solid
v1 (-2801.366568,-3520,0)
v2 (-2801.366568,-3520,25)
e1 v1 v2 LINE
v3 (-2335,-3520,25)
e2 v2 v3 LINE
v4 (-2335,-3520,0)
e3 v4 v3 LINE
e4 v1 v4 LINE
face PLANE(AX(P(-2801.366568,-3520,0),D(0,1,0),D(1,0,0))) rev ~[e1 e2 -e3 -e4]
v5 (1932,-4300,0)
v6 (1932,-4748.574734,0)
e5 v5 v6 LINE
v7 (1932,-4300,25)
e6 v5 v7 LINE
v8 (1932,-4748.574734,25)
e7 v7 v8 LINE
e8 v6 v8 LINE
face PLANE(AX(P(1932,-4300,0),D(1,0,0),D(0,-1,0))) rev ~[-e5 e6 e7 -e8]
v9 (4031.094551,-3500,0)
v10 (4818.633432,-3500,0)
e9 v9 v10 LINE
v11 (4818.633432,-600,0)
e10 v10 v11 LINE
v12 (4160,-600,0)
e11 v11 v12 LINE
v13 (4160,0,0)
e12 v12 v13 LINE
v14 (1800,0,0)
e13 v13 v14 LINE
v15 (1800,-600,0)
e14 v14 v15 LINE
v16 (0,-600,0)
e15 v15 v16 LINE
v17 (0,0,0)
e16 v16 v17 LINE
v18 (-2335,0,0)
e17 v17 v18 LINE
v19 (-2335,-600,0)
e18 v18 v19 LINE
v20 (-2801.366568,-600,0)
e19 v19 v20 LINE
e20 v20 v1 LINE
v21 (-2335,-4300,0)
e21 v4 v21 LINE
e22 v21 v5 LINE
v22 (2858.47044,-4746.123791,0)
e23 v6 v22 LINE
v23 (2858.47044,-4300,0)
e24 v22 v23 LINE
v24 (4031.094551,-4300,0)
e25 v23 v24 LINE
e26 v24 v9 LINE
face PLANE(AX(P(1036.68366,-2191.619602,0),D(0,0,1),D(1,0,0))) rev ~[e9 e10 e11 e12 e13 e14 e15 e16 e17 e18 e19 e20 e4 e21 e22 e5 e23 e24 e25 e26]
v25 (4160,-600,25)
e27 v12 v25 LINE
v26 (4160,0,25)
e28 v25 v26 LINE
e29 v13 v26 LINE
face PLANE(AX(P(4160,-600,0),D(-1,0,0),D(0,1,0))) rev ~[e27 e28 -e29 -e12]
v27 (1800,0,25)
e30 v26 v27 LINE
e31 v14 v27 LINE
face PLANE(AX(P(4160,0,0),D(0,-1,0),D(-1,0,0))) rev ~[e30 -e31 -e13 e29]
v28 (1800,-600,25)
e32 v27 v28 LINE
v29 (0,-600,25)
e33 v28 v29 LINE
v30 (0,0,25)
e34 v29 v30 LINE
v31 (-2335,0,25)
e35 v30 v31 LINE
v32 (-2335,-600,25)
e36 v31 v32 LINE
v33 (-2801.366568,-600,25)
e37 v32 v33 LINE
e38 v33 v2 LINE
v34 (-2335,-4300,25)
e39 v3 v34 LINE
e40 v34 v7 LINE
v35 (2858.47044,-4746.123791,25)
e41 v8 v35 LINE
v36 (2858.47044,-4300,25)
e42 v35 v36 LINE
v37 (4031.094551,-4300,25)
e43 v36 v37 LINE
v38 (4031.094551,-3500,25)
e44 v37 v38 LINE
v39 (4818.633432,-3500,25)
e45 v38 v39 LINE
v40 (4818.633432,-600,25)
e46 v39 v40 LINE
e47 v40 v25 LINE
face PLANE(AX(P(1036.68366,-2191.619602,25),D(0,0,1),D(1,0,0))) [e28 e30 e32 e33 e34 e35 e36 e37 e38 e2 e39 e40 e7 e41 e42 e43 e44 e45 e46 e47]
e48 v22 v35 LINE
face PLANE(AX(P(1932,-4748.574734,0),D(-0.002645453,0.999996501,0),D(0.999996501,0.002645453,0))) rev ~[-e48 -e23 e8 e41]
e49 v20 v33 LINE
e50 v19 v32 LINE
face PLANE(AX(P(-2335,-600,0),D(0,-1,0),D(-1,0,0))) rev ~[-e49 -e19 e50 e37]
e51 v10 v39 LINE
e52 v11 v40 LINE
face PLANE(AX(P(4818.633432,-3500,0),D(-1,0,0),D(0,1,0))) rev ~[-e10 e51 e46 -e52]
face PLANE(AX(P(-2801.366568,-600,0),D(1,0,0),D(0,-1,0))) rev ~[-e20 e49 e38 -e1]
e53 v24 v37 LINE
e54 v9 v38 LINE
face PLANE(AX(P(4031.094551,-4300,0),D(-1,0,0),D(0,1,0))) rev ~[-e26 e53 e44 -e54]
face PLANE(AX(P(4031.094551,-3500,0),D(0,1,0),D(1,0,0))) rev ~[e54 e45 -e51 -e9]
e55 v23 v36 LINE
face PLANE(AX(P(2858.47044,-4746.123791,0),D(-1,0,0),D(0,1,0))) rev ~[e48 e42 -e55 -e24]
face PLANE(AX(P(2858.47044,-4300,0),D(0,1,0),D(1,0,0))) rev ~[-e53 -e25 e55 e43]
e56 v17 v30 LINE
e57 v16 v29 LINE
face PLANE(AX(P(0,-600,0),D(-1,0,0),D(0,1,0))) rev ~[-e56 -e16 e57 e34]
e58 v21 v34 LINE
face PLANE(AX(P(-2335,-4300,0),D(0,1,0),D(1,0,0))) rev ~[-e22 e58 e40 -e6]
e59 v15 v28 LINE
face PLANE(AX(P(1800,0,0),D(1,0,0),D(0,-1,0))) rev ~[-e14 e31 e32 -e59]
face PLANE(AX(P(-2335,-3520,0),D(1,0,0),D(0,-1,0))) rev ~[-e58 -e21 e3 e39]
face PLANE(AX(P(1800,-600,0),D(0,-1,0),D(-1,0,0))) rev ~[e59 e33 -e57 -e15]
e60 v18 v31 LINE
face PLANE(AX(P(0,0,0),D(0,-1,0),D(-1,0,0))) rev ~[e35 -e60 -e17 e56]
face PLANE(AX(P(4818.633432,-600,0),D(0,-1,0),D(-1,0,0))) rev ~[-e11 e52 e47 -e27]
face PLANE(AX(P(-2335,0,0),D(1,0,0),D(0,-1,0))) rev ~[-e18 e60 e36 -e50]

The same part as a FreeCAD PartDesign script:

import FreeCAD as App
import Part
import Sketcher
from FreeCAD import Vector
Q = App.Units.Quantity

doc = App.newDocument("Part")
body = doc.addObject("PartDesign::Body", "Body")

# Sketch on XY plane
sketch1 = doc.addObject("Sketcher::SketchObject", "Sketch")
body.addObject(sketch1)
sketch1.AttachmentSupport = (doc.XY_Plane, [""])
sketch1.MapMode = "FlatFace"
sketch1.addGeometry(Part.LineSegment(Vector(0, -600, 0), Vector(0, 0, 0)), False)
sketch1.addGeometry(Part.LineSegment(Vector(0, 0, 0), Vector(-2335, 0, 0)), False)
sketch1.addGeometry(Part.LineSegment(Vector(-2335, 0, 0), Vector(-2335, -600, 0)), False)
sketch1.addGeometry(Part.LineSegment(Vector(-2335, -600, 0), Vector(-2801, -600, 0)), False)
sketch1.addGeometry(Part.LineSegment(Vector(-2801, -600, 0), Vector(-2801, -3520, 0)), False)
sketch1.addGeometry(Part.LineSegment(Vector(-2801, -3520, 0), Vector(-2335, -3520, 0)), False)
sketch1.addGeometry(Part.LineSegment(Vector(-2335, -3520, 0), Vector(-2335, -4300, 0)), False)
sketch1.addGeometry(Part.LineSegment(Vector(-2335, -4300, 0), Vector(1932, -4300, 0)), False)
sketch1.addGeometry(Part.LineSegment(Vector(1932, -4300, 0), Vector(1932, -4749, 0)), False)
sketch1.addGeometry(Part.LineSegment(Vector(1932, -4749, 0), Vector(2858, -4746, 0)), False)
sketch1.addGeometry(Part.LineSegment(Vector(2858, -4746, 0), Vector(2858, -4300, 0)), False)
sketch1.addGeometry(Part.LineSegment(Vector(2858, -4300, 0), Vector(4031, -4300, 0)), False)
sketch1.addGeometry(Part.LineSegment(Vector(4031, -4300, 0), Vector(4031, -3500, 0)), False)
sketch1.addGeometry(Part.LineSegment(Vector(4031, -3500, 0), Vector(4819, -3500, 0)), False)
sketch1.addGeometry(Part.LineSegment(Vector(4819, -3500, 0), Vector(4819, -600, 0)), False)
sketch1.addGeometry(Part.LineSegment(Vector(4819, -600, 0), Vector(4160, -600, 0)), False)
sketch1.addGeometry(Part.LineSegment(Vector(4160, -600, 0), Vector(4160, 0, 0)), False)
sketch1.addGeometry(Part.LineSegment(Vector(4160, 0, 0), Vector(1800, 0, 0)), False)
sketch1.addGeometry(Part.LineSegment(Vector(1800, 0, 0), Vector(1800, -600, 0)), False)
sketch1.addGeometry(Part.LineSegment(Vector(1800, -600, 0), Vector(0, -600, 0)), False)
sketch1.addConstraint(Sketcher.Constraint("Coincident", 0, 2, 1, 1))
sketch1.addConstraint(Sketcher.Constraint("Coincident", 1, 2, 2, 1))
sketch1.addConstraint(Sketcher.Constraint("Coincident", 2, 2, 3, 1))
sketch1.addConstraint(Sketcher.Constraint("Coincident", 3, 2, 4, 1))
sketch1.addConstraint(Sketcher.Constraint("Coincident", 4, 2, 5, 1))
sketch1.addConstraint(Sketcher.Constraint("Coincident", 5, 2, 6, 1))
sketch1.addConstraint(Sketcher.Constraint("Coincident", 6, 2, 7, 1))
sketch1.addConstraint(Sketcher.Constraint("Coincident", 7, 2, 8, 1))
sketch1.addConstraint(Sketcher.Constraint("Coincident", 8, 2, 9, 1))
sketch1.addConstraint(Sketcher.Constraint("Coincident", 9, 2, 10, 1))
sketch1.addConstraint(Sketcher.Constraint("Coincident", 10, 2, 11, 1))
sketch1.addConstraint(Sketcher.Constraint("Coincident", 11, 2, 12, 1))
sketch1.addConstraint(Sketcher.Constraint("Coincident", 12, 2, 13, 1))
sketch1.addConstraint(Sketcher.Constraint("Coincident", 13, 2, 14, 1))
sketch1.addConstraint(Sketcher.Constraint("Coincident", 14, 2, 15, 1))
sketch1.addConstraint(Sketcher.Constraint("Coincident", 15, 2, 16, 1))
sketch1.addConstraint(Sketcher.Constraint("Coincident", 16, 2, 17, 1))
sketch1.addConstraint(Sketcher.Constraint("Coincident", 17, 2, 18, 1))
sketch1.addConstraint(Sketcher.Constraint("Coincident", 18, 2, 19, 1))
sketch1.addConstraint(Sketcher.Constraint("Coincident", 19, 2, 0, 1))
sketch1.addConstraint(Sketcher.Constraint("Vertical", 0))
sketch1.addConstraint(Sketcher.Constraint("Horizontal", 1))
sketch1.addConstraint(Sketcher.Constraint("Vertical", 2))
sketch1.addConstraint(Sketcher.Constraint("Horizontal", 3))
sketch1.addConstraint(Sketcher.Constraint("Vertical", 4))
sketch1.addConstraint(Sketcher.Constraint("Horizontal", 5))
sketch1.addConstraint(Sketcher.Constraint("Vertical", 6))
sketch1.addConstraint(Sketcher.Constraint("Horizontal", 7))
sketch1.addConstraint(Sketcher.Constraint("Vertical", 8))
sketch1.addConstraint(Sketcher.Constraint("Vertical", 10))
sketch1.addConstraint(Sketcher.Constraint("Horizontal", 11))
sketch1.addConstraint(Sketcher.Constraint("Vertical", 12))
sketch1.addConstraint(Sketcher.Constraint("Horizontal", 13))
sketch1.addConstraint(Sketcher.Constraint("Vertical", 14))
sketch1.addConstraint(Sketcher.Constraint("Horizontal", 15))
sketch1.addConstraint(Sketcher.Constraint("Vertical", 16))
sketch1.addConstraint(Sketcher.Constraint("Horizontal", 17))
sketch1.addConstraint(Sketcher.Constraint("Vertical", 18))
sketch1.addConstraint(Sketcher.Constraint("Horizontal", 19))
sketch1.addConstraint(Sketcher.Constraint("Coincident", 0, 2, -1, 1))
sketch1.addConstraint(Sketcher.Constraint("PointOnObject", 16, 2, -1))
sketch1.addConstraint(Sketcher.Constraint("Horizontal", 7, 2, 10, 2))
sketch1.addConstraint(Sketcher.Constraint("Horizontal", 3, 2, 14, 2))
sketch1.addConstraint(Sketcher.Constraint("Horizontal", 15, 2, 18, 2))
sketch1.addConstraint(Sketcher.Constraint("Vertical", 2, 2, 5, 2))
sketch1.addConstraint(Sketcher.Constraint("DistanceX", 1, 2, 1, 1, Q("2335 mm")))
sketch1.addConstraint(Sketcher.Constraint("DistanceX", 7, 1, 7, 2, Q("4267 mm")))
sketch1.addConstraint(Sketcher.Constraint("DistanceX", 17, 2, 17, 1, Q("2360 mm")))
sketch1.addConstraint(Sketcher.Constraint("DistanceX", 19, 2, 19, 1, Q("1800 mm")))
sketch1.addConstraint(Sketcher.Constraint("DistanceY", 0, 1, 0, 2, Q("600 mm")))
sketch1.addConstraint(Sketcher.Constraint("DistanceY", 4, 2, 4, 1, Q("2920 mm")))
sketch1.addConstraint(Sketcher.Constraint("DistanceY", 6, 2, 6, 1, Q("780 mm")))
sketch1.addConstraint(Sketcher.Constraint("DistanceY", 12, 1, 12, 2, Q("800 mm")))
sketch1.addConstraint(Sketcher.Constraint("DistanceX", 11, 1, 11, 2, Q("1172.624111 mm")))
sketch1.addConstraint(Sketcher.Constraint("DistanceX", 13, 1, 13, 2, Q("787.538881 mm")))
sketch1.addConstraint(Sketcher.Constraint("DistanceX", 15, 2, 15, 1, Q("658.633432 mm")))
sketch1.addConstraint(Sketcher.Constraint("DistanceY", 10, 1, 10, 2, Q("446.123791 mm")))
sketch1.addConstraint(Sketcher.Constraint("DistanceX", 3, 2, 3, 1, Q("466.366568 mm")))
sketch1.addConstraint(Sketcher.Constraint("DistanceY", 8, 2, 8, 1, Q("448.574734 mm")))
pad1 = doc.addObject("PartDesign::Pad", "Pad")
body.addObject(pad1)
pad1.Profile = sketch1
pad1.Length = 25

doc.recompute()
